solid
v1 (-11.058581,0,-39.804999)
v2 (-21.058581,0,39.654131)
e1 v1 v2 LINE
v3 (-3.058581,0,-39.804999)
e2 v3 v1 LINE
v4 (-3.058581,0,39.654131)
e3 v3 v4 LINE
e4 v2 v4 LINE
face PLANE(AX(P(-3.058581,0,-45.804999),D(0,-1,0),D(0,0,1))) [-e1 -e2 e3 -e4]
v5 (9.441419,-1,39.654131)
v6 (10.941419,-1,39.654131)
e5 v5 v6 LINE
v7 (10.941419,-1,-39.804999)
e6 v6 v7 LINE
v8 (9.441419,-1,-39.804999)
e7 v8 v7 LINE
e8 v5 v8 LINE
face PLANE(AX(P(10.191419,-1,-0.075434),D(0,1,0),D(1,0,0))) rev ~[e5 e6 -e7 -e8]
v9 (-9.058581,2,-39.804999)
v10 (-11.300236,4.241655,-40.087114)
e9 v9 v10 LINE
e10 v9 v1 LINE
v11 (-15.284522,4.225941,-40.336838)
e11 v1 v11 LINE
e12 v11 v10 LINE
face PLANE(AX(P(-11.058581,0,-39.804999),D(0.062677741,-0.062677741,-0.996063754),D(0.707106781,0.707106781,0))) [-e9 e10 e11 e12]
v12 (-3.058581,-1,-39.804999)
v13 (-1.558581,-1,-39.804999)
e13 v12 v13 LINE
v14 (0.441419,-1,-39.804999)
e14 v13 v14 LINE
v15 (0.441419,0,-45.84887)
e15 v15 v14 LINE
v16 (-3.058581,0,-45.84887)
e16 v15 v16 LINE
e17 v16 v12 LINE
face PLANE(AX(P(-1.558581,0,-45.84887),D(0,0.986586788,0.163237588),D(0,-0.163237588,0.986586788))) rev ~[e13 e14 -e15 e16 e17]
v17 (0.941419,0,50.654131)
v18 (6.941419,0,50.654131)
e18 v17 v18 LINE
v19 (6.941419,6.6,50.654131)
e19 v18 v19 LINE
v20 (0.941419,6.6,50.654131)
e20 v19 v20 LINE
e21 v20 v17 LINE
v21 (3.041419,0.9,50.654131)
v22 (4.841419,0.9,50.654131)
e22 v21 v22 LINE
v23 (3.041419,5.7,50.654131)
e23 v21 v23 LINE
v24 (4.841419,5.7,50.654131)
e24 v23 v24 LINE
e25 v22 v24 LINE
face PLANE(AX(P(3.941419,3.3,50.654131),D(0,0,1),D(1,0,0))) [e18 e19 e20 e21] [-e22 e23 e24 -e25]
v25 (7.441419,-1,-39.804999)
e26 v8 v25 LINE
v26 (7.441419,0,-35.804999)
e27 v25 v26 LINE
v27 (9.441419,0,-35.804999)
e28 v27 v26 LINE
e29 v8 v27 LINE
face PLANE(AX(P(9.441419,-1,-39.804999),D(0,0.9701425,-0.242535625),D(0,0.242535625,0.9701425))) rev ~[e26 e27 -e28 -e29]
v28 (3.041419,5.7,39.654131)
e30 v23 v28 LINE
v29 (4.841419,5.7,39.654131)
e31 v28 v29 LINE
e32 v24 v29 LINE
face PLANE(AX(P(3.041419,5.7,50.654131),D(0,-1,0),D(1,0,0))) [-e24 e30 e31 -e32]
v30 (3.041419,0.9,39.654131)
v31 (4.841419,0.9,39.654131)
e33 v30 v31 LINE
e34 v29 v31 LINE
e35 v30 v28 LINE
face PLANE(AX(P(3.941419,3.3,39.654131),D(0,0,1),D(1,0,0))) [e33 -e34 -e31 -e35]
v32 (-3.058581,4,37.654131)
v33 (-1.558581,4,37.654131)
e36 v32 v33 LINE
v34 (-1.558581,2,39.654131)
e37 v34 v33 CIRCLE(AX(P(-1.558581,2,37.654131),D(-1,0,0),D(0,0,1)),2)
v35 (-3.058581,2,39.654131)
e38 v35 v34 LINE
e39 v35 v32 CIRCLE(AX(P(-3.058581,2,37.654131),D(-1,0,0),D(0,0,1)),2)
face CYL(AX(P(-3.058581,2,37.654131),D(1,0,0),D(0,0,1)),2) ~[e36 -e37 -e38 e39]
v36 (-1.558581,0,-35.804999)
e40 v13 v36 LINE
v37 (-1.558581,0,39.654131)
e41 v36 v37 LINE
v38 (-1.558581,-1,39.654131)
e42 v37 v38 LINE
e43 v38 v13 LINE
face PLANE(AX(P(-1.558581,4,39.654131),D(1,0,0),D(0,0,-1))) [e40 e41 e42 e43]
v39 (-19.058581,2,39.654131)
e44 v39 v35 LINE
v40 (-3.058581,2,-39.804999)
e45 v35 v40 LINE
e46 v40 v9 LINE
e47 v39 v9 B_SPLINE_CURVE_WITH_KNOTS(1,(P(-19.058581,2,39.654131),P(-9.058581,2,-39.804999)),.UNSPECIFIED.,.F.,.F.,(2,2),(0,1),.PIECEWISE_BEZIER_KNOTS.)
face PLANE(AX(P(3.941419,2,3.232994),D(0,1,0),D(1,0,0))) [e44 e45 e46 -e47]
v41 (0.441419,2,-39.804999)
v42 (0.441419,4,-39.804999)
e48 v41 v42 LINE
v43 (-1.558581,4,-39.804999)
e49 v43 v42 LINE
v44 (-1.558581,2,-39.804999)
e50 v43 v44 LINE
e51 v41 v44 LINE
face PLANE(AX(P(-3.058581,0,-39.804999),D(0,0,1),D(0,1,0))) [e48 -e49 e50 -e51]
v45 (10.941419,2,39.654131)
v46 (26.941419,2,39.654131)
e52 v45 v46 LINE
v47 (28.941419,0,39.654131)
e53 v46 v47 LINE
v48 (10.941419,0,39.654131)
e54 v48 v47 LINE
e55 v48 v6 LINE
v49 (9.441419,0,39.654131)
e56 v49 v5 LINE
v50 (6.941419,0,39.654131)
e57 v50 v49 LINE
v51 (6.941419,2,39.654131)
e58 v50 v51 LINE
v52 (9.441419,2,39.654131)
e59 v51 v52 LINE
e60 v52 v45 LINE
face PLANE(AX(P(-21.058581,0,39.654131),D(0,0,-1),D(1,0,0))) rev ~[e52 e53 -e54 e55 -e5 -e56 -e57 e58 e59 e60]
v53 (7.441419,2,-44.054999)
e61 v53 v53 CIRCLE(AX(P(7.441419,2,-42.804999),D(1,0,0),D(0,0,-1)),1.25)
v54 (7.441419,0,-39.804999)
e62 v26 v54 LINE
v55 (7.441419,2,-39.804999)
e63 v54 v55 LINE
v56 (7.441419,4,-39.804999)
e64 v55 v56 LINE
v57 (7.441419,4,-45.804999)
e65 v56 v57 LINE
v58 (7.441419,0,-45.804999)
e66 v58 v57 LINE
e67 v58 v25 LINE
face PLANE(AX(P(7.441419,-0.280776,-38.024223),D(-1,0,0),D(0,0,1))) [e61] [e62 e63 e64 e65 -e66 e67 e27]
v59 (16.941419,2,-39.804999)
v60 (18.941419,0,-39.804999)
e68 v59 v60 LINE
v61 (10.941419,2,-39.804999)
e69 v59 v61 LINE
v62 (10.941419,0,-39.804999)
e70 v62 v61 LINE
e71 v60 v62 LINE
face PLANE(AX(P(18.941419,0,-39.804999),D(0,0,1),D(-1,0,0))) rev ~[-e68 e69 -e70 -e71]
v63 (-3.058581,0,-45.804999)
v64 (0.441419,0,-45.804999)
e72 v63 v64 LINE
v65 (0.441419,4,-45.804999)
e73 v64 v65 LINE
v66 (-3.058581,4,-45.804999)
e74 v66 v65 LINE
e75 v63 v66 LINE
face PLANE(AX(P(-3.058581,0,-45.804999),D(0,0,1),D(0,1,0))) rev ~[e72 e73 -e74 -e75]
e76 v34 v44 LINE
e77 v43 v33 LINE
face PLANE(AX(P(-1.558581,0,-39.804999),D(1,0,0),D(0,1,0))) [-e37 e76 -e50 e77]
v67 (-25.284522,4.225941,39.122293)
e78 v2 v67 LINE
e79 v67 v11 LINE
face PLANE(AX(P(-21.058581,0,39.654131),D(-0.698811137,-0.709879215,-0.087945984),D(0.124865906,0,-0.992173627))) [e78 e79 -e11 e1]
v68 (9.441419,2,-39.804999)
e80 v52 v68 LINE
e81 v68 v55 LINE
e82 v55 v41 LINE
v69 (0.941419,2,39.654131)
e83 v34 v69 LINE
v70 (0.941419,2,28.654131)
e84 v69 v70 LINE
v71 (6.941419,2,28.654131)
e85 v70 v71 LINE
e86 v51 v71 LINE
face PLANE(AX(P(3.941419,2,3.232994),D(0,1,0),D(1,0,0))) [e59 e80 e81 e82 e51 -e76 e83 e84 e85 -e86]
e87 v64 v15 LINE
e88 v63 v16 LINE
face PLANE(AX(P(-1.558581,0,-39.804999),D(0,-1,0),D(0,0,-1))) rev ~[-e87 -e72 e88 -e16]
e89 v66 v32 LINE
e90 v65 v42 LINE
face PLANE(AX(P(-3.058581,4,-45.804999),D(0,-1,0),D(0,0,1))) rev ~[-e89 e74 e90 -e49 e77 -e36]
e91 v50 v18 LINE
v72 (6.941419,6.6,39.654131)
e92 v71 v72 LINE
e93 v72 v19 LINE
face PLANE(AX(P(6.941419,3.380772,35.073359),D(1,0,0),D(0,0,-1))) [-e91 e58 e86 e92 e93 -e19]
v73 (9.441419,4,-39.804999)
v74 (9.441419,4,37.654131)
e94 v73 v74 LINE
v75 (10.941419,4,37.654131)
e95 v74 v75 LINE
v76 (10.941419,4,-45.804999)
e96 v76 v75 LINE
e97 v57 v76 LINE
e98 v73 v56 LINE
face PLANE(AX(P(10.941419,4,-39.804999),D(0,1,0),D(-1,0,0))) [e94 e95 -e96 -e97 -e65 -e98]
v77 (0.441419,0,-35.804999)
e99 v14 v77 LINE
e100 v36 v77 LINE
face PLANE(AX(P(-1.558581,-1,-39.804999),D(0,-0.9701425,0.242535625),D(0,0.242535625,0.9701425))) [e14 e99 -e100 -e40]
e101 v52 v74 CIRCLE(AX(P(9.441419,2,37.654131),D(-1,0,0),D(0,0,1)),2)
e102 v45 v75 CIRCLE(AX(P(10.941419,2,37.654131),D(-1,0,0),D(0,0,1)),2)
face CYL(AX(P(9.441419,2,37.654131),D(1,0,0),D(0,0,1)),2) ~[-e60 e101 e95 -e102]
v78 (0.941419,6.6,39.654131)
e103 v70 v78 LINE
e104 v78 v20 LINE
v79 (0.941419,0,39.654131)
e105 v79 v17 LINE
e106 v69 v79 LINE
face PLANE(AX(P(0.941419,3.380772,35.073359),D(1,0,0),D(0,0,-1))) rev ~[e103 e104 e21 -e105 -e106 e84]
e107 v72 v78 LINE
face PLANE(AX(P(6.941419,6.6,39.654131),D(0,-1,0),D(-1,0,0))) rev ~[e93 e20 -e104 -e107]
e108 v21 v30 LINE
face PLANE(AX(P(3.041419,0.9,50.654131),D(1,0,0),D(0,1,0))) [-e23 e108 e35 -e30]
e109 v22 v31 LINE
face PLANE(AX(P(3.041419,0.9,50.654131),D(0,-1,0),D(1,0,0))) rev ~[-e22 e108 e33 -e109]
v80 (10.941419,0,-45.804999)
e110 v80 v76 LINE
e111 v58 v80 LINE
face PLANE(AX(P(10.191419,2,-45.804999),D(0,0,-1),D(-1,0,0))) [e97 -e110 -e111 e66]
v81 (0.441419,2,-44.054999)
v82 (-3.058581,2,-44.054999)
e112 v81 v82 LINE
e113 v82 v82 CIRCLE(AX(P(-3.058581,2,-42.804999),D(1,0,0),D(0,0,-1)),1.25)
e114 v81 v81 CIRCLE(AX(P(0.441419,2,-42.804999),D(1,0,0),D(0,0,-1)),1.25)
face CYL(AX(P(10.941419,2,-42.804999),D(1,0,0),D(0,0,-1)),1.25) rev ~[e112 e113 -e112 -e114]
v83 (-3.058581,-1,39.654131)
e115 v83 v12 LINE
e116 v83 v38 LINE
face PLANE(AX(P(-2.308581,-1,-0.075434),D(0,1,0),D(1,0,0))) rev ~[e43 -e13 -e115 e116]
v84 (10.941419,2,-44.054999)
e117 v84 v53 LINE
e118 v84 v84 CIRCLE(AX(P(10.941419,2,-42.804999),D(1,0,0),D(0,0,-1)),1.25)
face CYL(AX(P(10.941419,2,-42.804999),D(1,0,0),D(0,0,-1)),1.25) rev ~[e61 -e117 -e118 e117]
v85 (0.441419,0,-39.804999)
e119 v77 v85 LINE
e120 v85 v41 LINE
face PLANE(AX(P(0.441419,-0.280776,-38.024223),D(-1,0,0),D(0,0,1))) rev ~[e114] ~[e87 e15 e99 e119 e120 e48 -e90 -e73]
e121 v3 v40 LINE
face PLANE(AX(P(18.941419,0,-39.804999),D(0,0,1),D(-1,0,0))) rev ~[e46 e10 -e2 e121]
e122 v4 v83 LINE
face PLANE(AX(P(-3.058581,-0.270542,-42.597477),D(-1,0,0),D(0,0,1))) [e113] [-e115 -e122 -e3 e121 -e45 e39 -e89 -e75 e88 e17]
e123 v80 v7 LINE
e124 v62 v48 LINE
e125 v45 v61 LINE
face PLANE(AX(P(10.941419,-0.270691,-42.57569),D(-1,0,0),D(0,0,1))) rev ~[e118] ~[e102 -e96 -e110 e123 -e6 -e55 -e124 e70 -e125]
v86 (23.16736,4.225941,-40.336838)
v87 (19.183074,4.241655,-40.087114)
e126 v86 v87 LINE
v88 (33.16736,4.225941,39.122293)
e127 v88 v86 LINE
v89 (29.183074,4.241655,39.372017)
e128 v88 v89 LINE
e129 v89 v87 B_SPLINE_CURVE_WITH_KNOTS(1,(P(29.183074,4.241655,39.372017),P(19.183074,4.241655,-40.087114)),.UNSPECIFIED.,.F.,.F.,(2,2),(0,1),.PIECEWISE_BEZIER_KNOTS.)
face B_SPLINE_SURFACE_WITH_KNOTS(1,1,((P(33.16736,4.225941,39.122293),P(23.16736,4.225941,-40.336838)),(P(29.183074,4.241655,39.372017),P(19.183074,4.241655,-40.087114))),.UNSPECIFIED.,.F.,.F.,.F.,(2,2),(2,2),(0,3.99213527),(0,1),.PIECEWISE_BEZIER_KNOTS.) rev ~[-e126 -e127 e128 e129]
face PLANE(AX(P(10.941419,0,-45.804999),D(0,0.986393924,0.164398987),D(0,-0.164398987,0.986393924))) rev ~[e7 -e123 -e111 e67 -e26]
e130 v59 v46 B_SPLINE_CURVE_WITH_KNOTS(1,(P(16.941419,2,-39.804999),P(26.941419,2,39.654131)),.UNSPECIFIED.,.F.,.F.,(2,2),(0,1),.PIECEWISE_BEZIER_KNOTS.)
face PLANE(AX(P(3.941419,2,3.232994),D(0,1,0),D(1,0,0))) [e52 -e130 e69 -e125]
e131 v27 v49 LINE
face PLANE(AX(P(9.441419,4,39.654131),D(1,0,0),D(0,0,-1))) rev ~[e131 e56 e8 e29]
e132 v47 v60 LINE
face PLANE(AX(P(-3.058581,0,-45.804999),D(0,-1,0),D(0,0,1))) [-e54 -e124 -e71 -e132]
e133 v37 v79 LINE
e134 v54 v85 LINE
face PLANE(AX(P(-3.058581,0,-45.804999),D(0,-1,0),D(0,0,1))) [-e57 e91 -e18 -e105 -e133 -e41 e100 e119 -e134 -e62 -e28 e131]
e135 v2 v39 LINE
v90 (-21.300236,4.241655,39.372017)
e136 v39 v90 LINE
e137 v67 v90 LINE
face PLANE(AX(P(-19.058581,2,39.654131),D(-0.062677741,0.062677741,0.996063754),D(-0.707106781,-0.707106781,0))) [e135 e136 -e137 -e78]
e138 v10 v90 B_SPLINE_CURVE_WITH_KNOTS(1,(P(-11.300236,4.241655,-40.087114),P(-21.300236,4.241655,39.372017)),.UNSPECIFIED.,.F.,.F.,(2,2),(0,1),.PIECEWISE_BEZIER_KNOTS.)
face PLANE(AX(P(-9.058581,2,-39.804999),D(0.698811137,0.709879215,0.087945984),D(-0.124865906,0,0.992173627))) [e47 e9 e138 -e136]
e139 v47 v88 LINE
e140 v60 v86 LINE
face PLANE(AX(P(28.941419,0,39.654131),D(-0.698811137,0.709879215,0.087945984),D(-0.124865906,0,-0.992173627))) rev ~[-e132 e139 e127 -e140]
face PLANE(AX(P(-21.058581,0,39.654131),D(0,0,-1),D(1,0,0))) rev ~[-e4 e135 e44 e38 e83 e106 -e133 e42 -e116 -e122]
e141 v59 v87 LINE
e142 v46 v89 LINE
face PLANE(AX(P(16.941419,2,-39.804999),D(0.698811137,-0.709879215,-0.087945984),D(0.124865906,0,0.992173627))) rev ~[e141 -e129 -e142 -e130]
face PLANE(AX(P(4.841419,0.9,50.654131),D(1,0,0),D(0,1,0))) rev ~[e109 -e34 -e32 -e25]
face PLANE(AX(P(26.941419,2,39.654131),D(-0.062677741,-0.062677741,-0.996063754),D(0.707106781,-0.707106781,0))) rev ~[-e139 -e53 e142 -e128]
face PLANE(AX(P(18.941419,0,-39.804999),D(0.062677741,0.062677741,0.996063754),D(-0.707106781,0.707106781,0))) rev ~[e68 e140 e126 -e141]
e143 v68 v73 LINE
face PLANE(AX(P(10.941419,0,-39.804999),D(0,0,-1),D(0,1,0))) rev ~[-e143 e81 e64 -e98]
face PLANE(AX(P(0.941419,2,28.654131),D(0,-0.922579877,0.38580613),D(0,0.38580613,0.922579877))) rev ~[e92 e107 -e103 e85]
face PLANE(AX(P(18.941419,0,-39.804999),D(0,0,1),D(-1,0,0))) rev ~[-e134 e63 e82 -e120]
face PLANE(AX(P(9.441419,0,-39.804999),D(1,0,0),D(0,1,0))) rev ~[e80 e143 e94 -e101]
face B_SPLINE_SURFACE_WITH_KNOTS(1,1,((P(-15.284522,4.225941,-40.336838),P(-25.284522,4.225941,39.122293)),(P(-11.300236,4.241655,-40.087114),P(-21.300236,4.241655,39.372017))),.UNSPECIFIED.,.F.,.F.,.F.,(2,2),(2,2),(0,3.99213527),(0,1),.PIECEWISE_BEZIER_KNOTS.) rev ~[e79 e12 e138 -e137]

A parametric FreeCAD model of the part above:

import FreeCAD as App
import Part
import Sketcher

V = App.Vector
Q = App.Units.Quantity


def edges_at(feature, points):
    """Names of the edges that pass closest to the given points."""
    edges = feature.Shape.Edges
    near = lambda p: min(range(len(edges)), key=lambda i: edges[i].distToShape(Part.Vertex(*p))[0])
    return sorted({f"Edge{near(p) + 1}" for p in points})


def add_polygon(sketch, points):
    """Adds a closed chain of lines whose ends are joined by coincident constraints."""
    first, n = sketch.GeometryCount, len(points)
    for a, b in zip(points, points[1:] + points[:1]):
        sketch.addGeometry(Part.LineSegment(App.Vector(*a, 0), App.Vector(*b, 0)), False)
    for i in range(n):
        sketch.addConstraint(Sketcher.Constraint("Coincident", first + i, 2, first + (i + 1) % n, 1))

doc = App.newDocument("Part")
body = doc.addObject("PartDesign::Body", "Body")

# Sketch on XZ plane
sketch1 = body.newObject("Sketcher::SketchObject", "Sketch")
sketch1.AttachmentSupport = (doc.getObject("XZ_Plane"), [""])
sketch1.MapMode = "FlatFace"
add_polygon(sketch1, [(-21, 40), (29, 40), (19, -40), (-11, -40)])  # lines 0-3
sketch1.addConstraint([
    Sketcher.Constraint("Horizontal", 0),
    Sketcher.Constraint("Horizontal", 2),
    Sketcher.Constraint("Equal", 1, 3),
    Sketcher.Constraint("DistanceX", 0, 1, 0, 2, Q("50 mm")),
    Sketcher.Constraint("DistanceX", 2, 2, 2, 1, Q("30 mm")),
    Sketcher.Constraint("DistanceY", 1, 2, -1, 1, Q("39.804999 mm")),
    Sketcher.Constraint("DistanceX", -1, 1, 0, 2, Q("28.941419 mm")),
    Sketcher.Constraint("DistanceY", -1, 1, 0, 2, Q("39.654131 mm")),
])
pad1 = body.newObject("PartDesign::Pad", "Pad")
pad1.Profile = sketch1
pad1.Length = 2
pad1.Reversed = True

# Sketch on XY plane
sketch2 = body.newObject("Sketcher::SketchObject", "Sketch001")
sketch2.AttachmentSupport = (doc.getObject("XY_Plane"), [""])
sketch2.MapMode = "FlatFace"
sketch2.AttachmentOffset = App.Placement(V(0, 0, 39.654131), App.Rotation())
add_polygon(sketch2, [(-21.1, 2), (-21.1, 0), (-19.1, 2)])  # lines 0-2
sketch2.addConstraint([
    Sketcher.Constraint("Vertical", 0),
    Sketcher.Constraint("Horizontal", 2),
    Sketcher.Constraint("PointOnObject", 0, 2, -1),
    Sketcher.Constraint("Equal", 2, 0),
    Sketcher.Constraint("DistanceX", 2, 2, 2, 1, Q("2 mm")),
    Sketcher.Constraint("DistanceX", 0, 2, -1, 1, Q("21.058581 mm")),
])

# Sketch on XY plane
sketch3 = body.newObject("Sketcher::SketchObject", "Sketch002")
sketch3.AttachmentSupport = (doc.getObject("XY_Plane"), [""])
sketch3.MapMode = "FlatFace"
sketch3.AttachmentOffset = App.Placement(V(0, 0, -39.804999), App.Rotation())
add_polygon(sketch3, [(-11.1, 0), (-11.1, 2), (-9.1, 2)])  # lines 0-2
sketch3.addConstraint([
    Sketcher.Constraint("Vertical", 0),
    Sketcher.Constraint("Horizontal", 1),
    Sketcher.Constraint("PointOnObject", 2, 2, -1),
    Sketcher.Constraint("Equal", 1, 0),
    Sketcher.Constraint("DistanceX", 1, 1, 1, 2, Q("2 mm")),
    Sketcher.Constraint("DistanceX", 0, 2, -1, 1, Q("11.058581 mm")),
])

subtractiveloft = body.newObject("PartDesign::SubtractiveLoft", "SubtractiveLoft")
subtractiveloft.Profile = sketch2
subtractiveloft.Sections = [sketch3]

# Sketch on XY plane
sketch4 = body.newObject("Sketcher::SketchObject", "Sketch003")
sketch4.AttachmentSupport = (doc.getObject("XY_Plane"), [""])
sketch4.MapMode = "FlatFace"
sketch4.AttachmentOffset = App.Placement(V(0, 0, -39.804999), App.Rotation())
add_polygon(sketch4, [(18.9, 2), (18.9, 0), (16.9, 2)])  # lines 0-2
sketch4.addConstraint([
    Sketcher.Constraint("Vertical", 0),
    Sketcher.Constraint("Horizontal", 2),
    Sketcher.Constraint("PointOnObject", 0, 2, -1),
    Sketcher.Constraint("Equal", 2, 0),
    Sketcher.Constraint("DistanceX", 2, 1, 2, 2, Q("2 mm")),
    Sketcher.Constraint("DistanceX", -1, 1, 0, 2, Q("18.941419 mm")),
])

# Sketch on XY plane
sketch5 = body.newObject("Sketcher::SketchObject", "Sketch004")
sketch5.AttachmentSupport = (doc.getObject("XY_Plane"), [""])
sketch5.MapMode = "FlatFace"
sketch5.AttachmentOffset = App.Placement(V(0, 0, 39.654131), App.Rotation())
add_polygon(sketch5, [(28.9, 0), (28.9, 2), (26.9, 2)])  # lines 0-2
sketch5.addConstraint([
    Sketcher.Constraint("Vertical", 0),
    Sketcher.Constraint("Horizontal", 1),
    Sketcher.Constraint("PointOnObject", 2, 2, -1),
    Sketcher.Constraint("Equal", 1, 0),
    Sketcher.Constraint("DistanceX", 1, 2, 1, 1, Q("2 mm")),
    Sketcher.Constraint("DistanceX", -1, 1, 0, 2, Q("28.941419 mm")),
])

subtractiveloft2 = body.newObject("PartDesign::SubtractiveLoft", "SubtractiveLoft001")
subtractiveloft2.Profile = sketch4
subtractiveloft2.Sections = [sketch5]

# Sketch on an angled plane
sketch6 = body.newObject("Sketcher::SketchObject", "Sketch005")
sketch6.Placement = App.Placement(V(11.881365, 11.881365, -1.49528), App.Rotation(V(-0.062677741, -0.062677741, -0.996063754), V(-0.707106782, 0.707106782, 0), V(0.704323435, 0.704323435, -0.088639711), "ZXY"))
add_polygon(sketch6, [(-41.3, -20.5), (38.5, -13.4), (38.5, -10.6), (-41.3, -17.6)])  # lines 0-3
sketch6.addConstraint([
    Sketcher.Constraint("Vertical", 1),
    Sketcher.Constraint("Vertical", 3),
    Sketcher.Constraint("Parallel", 0, 2),
    Sketcher.Constraint("DistanceY", 1, 1, 1, 2, Q("2.828427 mm")),
    Sketcher.Constraint("DistanceX", -1, 1, 0, 2, Q("38.461112 mm")),
    Sketcher.Constraint("DistanceY", 1, 2, -1, 1, Q("10.565179 mm")),
    Sketcher.Constraint("DistanceY", 2, 2, 0, 2, Q("4.242641 mm")),
    Sketcher.Constraint("Distance", 0, Q("80.085913 mm")),
])
pad2 = body.newObject("PartDesign::Pad", "Pad001")
pad2.Profile = sketch6
pad2.Length = 6

# Sketch on an angled plane
sketch7 = body.newObject("Sketcher::SketchObject", "Sketch006")
sketch7.Placement = App.Placement(V(-7.970914, 7.970914, -1.003146), App.Rotation(V(-0.062677741, 0.062677741, 0.996063754), V(0.707106782, 0.707106782, 0), V(-0.704323435, 0.704323435, -0.088639711), "ZXY"))
add_polygon(sketch7, [(40.8, -12.1), (-39, -5), (-39, -7.8), (40.8, -14.9)])  # lines 0-3
sketch7.addConstraint([
    Sketcher.Constraint("Vertical", 1),
    Sketcher.Constraint("Vertical", 3),
    Sketcher.Constraint("Parallel", 0, 2),
    Sketcher.Constraint("DistanceY", 1, 2, 1, 1, Q("2.828427 mm")),
    Sketcher.Constraint("DistanceX", 0, 2, -1, 1, Q("38.95519 mm")),
    Sketcher.Constraint("DistanceY", 0, 2, -1, 1, Q("4.99117 mm")),
    Sketcher.Constraint("DistanceY", 3, 2, -1, 1, Q("12.062238 mm")),
    Sketcher.Constraint("Distance", 0, Q("80.085913 mm")),
])
pad3 = body.newObject("PartDesign::Pad", "Pad002")
pad3.Profile = sketch7
pad3.Length = 6

# Sketch on an angled plane
sketch8 = body.newObject("Sketcher::SketchObject", "Sketch007")
sketch8.Placement = App.Placement(V(2.441623, -2.441623, -38.801853), App.Rotation(V(-0.998033817, -0.003936239, -0.062554019), V(0, 0.998026055, -0.06280122), V(0.062677741, -0.062677741, -0.996063754), "ZXY"))
add_polygon(sketch8, [(13.8, 6.8), (17.8, 6.8), (15.8, 8.7)])  # lines 0-2
sketch8.addConstraint([
    Sketcher.Constraint("Horizontal", 0),
    Sketcher.Constraint("Perpendicular", 1, 2),
    Sketcher.Constraint("DistanceY", -1, 1, 0, 2, Q("6.750801 mm")),
    Sketcher.Constraint("DistanceX", 0, 1, 0, 2, Q("3.992135 mm")),
    Sketcher.Constraint("DistanceX", -1, 1, 2, 2, Q("13.768931 mm")),
    Sketcher.Constraint("DistanceX", 1, 2, 0, 2, Q("2.00394 mm")),
])

# Sketch on an angled plane
sketch9 = body.newObject("Sketcher::SketchObject", "Sketch008")
sketch9.Placement = App.Placement(V(-2.558377, 2.558377, 40.657277), App.Rotation(V(0.998033817, 0.003936239, 0.062554019), V(0, 0.998026055, -0.06280122), V(-0.062677741, 0.062677741, 0.996063754), "ZXY"))
add_polygon(sketch9, [(-22.8, 1.8), (-18.8, 1.8), (-20.8, 3.8)])  # lines 0-2
sketch9.addConstraint([
    Sketcher.Constraint("Horizontal", 0),
    Sketcher.Constraint("Perpendicular", 1, 2),
    Sketcher.Constraint("DistanceX", 0, 1, 0, 2, Q("3.992135 mm")),
    Sketcher.Constraint("DistanceX", 0, 2, -1, 1, Q("18.778781 mm")),
    Sketcher.Constraint("DistanceY", -1, 1, 0, 2, Q("1.760671 mm")),
    Sketcher.Constraint("DistanceX", 2, 2, 1, 2, Q("2.00394 mm")),
])

subtractiveloft3 = body.newObject("PartDesign::SubtractiveLoft", "SubtractiveLoft002")
subtractiveloft3.Profile = sketch8
subtractiveloft3.Sections = [sketch9]

# Sketch on an angled plane
sketch10 = body.newObject("Sketcher::SketchObject", "Sketch009")
sketch10.Placement = App.Placement(V(2.589344, 2.589344, 41.149411), App.Rotation(V(0.998033817, -0.003936239, -0.062554019), V(0, 0.998026055, -0.06280122), V(0.062677741, 0.062677741, 0.996063754), "ZXY"))
add_polygon(sketch10, [(26.6, 1.8), (30.6, 1.8), (28.6, 3.8)])  # lines 0-2
sketch10.addConstraint([
    Sketcher.Constraint("Horizontal", 0),
    Sketcher.Constraint("Perpendicular", 1, 2),
    Sketcher.Constraint("DistanceX", 0, 1, 0, 2, Q("3.992135 mm")),
    Sketcher.Constraint("DistanceY", -1, 1, 0, 2, Q("1.760671 mm")),
    Sketcher.Constraint("DistanceX", -1, 1, 2, 2, Q("26.64612 mm")),
    Sketcher.Constraint("DistanceX", 1, 2, 0, 2, Q("2.00394 mm")),
])

# Sketch on an angled plane
sketch11 = body.newObject("Sketcher::SketchObject", "Sketch010")
sketch11.Placement = App.Placement(V(-2.410656, -2.410656, -38.309719), App.Rotation(V(-0.998033817, 0.003936239, 0.062554019), V(0, 0.998026055, -0.06280122), V(-0.062677741, -0.062677741, -0.996063754), "ZXY"))
add_polygon(sketch11, [(-25.6, 6.8), (-21.6, 6.8), (-23.6, 8.7)])  # lines 0-2
sketch11.addConstraint([
    Sketcher.Constraint("Horizontal", 0),
    Sketcher.Constraint("Perpendicular", 1, 2),
    Sketcher.Constraint("DistanceY", -1, 1, 0, 2, Q("6.750801 mm")),
    Sketcher.Constraint("DistanceX", 0, 1, 0, 2, Q("3.992135 mm")),
    Sketcher.Constraint("DistanceX", 0, 2, -1, 1, Q("21.63627 mm")),
    Sketcher.Constraint("DistanceX", 2, 2, 1, 2, Q("2.00394 mm")),
])

subtractiveloft4 = body.newObject("PartDesign::SubtractiveLoft", "SubtractiveLoft003")
subtractiveloft4.Profile = sketch10
subtractiveloft4.Sections = [sketch11]

# Sketch on XZ plane
sketch12 = body.newObject("Sketcher::SketchObject", "Sketch011")
sketch12.AttachmentSupport = (doc.getObject("XZ_Plane"), [""])
sketch12.MapMode = "FlatFace"
sketch12.AttachmentOffset = App.Placement(V(0, 0, -2), App.Rotation())
add_polygon(sketch12, [(9.4, -39.8), (9.4, 39.7), (10.9, 39.7), (10.9, -39.8)])  # lines 0-3
add_polygon(sketch12, [(-3.1, -39.8), (-3.1, 39.7), (-1.6, 39.7), (-1.6, -39.8)])  # lines 4-7
sketch12.addConstraint([
    Sketcher.Constraint("Vertical", 0),
    Sketcher.Constraint("Horizontal", 1),
    Sketcher.Constraint("Vertical", 2),
    Sketcher.Constraint("Horizontal", 3),
    Sketcher.Constraint("Vertical", 4),
    Sketcher.Constraint("Horizontal", 5),
    Sketcher.Constraint("Vertical", 6),
    Sketcher.Constraint("Horizontal", 7),
    Sketcher.Constraint("Horizontal", 1, 2, 4, 2),
    Sketcher.Constraint("Horizontal", 3, 2, 6, 2),
    Sketcher.Constraint("Equal", 3, 5),
    Sketcher.Constraint("DistanceX", 1, 1, 1, 2, Q("1.5 mm")),
    Sketcher.Constraint("DistanceX", 4, 2, 1, 2, Q("14 mm")),
    Sketcher.Constraint("DistanceY", 2, 2, -1, 1, Q("39.804999 mm")),
    Sketcher.Constraint("DistanceY", 0, 1, 0, 2, Q("79.45913 mm")),
    Sketcher.Constraint("DistanceX", -1, 1, 0, 2, Q("9.441419 mm")),
])
pad4 = body.newObject("PartDesign::Pad", "Pad003")
pad4.Profile = sketch12
pad4.Length = 2
pad4.Reversed = True

# Sketch on XY plane
sketch13 = body.newObject("Sketcher::SketchObject", "Sketch012")
sketch13.AttachmentSupport = (doc.getObject("XY_Plane"), [""])
sketch13.MapMode = "FlatFace"
sketch13.AttachmentOffset = App.Placement(V(0, 0, 39.654131), App.Rotation())
add_polygon(sketch13, [(7, 0), (7, 7), (1, 7), (1, 0)])  # lines 0-3
sketch13.addConstraint([
    Sketcher.Constraint("Vertical", 0),
    Sketcher.Constraint("Horizontal", 1),
    Sketcher.Constraint("Vertical", 2),
    Sketcher.Constraint("Horizontal", 3),
    Sketcher.Constraint("PointOnObject", 2, 2, -1),
    Sketcher.Constraint("DistanceX", 1, 2, 1, 1, Q("6 mm")),
    Sketcher.Constraint("DistanceY", 0, 1, 0, 2, Q("6.6 mm")),
    Sketcher.Constraint("DistanceX", -1, 1, 0, 2, Q("6.941419 mm")),
])
pad5 = body.newObject("PartDesign::Pad", "Pad004")
pad5.Profile = sketch13
pad5.Length = 11

# Sketch on XY plane
sketch14 = body.newObject("Sketcher::SketchObject", "Sketch013")
sketch14.AttachmentSupport = (doc.getObject("XY_Plane"), [""])
sketch14.MapMode = "FlatFace"
sketch14.AttachmentOffset = App.Placement(V(0, 0, 50.654131), App.Rotation())
add_polygon(sketch14, [(3, 5.7), (3, 0.9), (4.8, 0.9), (4.8, 5.7)])  # lines 0-3
sketch14.addConstraint([
    Sketcher.Constraint("Vertical", 0),
    Sketcher.Constraint("Horizontal", 1),
    Sketcher.Constraint("Vertical", 2),
    Sketcher.Constraint("Horizontal", 3),
    Sketcher.Constraint("DistanceX", 1, 1, 1, 2, Q("1.8 mm")),
    Sketcher.Constraint("DistanceY", 0, 2, 0, 1, Q("4.8 mm")),
    Sketcher.Constraint("DistanceY", -1, 1, 0, 2, Q("0.9 mm")),
    Sketcher.Constraint("DistanceX", -1, 1, 0, 2, Q("3.041419 mm")),
])
pocket1 = body.newObject("PartDesign::Pocket", "Pocket")
pocket1.Profile = sketch14
pocket1.Length = 11

# Sketch on YZ plane
sketch15 = body.newObject("Sketcher::SketchObject", "Sketch014")
sketch15.AttachmentSupport = (doc.getObject("YZ_Plane"), [""])
sketch15.MapMode = "FlatFace"
sketch15.AttachmentOffset = App.Placement(V(0, 0, 0.941419), App.Rotation())
add_polygon(sketch15, [(2, 28.7), (2, 39.7), (6.6, 39.7)])  # lines 0-2
sketch15.addConstraint([
    Sketcher.Constraint("Vertical", 0),
    Sketcher.Constraint("Horizontal", 1),
    Sketcher.Constraint("DistanceY", 0, 1, 0, 2, Q("11 mm")),
    Sketcher.Constraint("DistanceX", 1, 1, 1, 2, Q("4.6 mm")),
    Sketcher.Constraint("DistanceX", -1, 1, 0, 2, Q("2 mm")),
    Sketcher.Constraint("DistanceY", -1, 1, 0, 2, Q("39.654131 mm")),
])
pad6 = body.newObject("PartDesign::Pad", "Pad005")
pad6.Profile = sketch15
pad6.Length = 6

# Sketch on XY plane
sketch16 = body.newObject("Sketcher::SketchObject", "Sketch015")
sketch16.AttachmentSupport = (doc.getObject("XY_Plane"), [""])
sketch16.MapMode = "FlatFace"
sketch16.AttachmentOffset = App.Placement(V(0, 0, -39.804999), App.Rotation())
add_polygon(sketch16, [(10.9, 4), (10.9, 0), (9.4, 0), (9.4, 4)])  # lines 0-3
add_polygon(sketch16, [(-1.6, 4), (-1.6, 0), (-3.1, 0), (-3.1, 4)])  # lines 4-7
sketch16.addConstraint([
    Sketcher.Constraint("Vertical", 0),
    Sketcher.Constraint("Horizontal", 1),
    Sketcher.Constraint("Vertical", 2),
    Sketcher.Constraint("Horizontal", 3),
    Sketcher.Constraint("Vertical", 4),
    Sketcher.Constraint("Horizontal", 5),
    Sketcher.Constraint("Vertical", 6),
    Sketcher.Constraint("Horizontal", 7),
    Sketcher.Constraint("PointOnObject", 0, 2, -1),
    Sketcher.Constraint("PointOnObject", 4, 2, -1),
    Sketcher.Constraint("Horizontal", 3, 2, 6, 2),
    Sketcher.Constraint("Equal", 3, 5),
    Sketcher.Constraint("DistanceY", 0, 2, 0, 1, Q("4 mm")),
    Sketcher.Constraint("DistanceX", 1, 2, 1, 1, Q("1.5 mm")),
    Sketcher.Constraint("DistanceX", 4, 2, 1, 2, Q("11 mm")),
    Sketcher.Constraint("DistanceX", -1, 1, 0, 2, Q("10.941419 mm")),
])
pad7 = body.newObject("PartDesign::Pad", "Pad006")
pad7.Profile = sketch16
pad7.Length = 6
pad7.Reversed = True

# Sketch on YZ plane
sketch17 = body.newObject("Sketcher::SketchObject", "Sketch016")
sketch17.AttachmentSupport = (doc.getObject("YZ_Plane"), [""])
sketch17.MapMode = "FlatFace"
sketch17.AttachmentOffset = App.Placement(V(0, 0, -3.058581), App.Rotation())
add_polygon(sketch17, [(4, -45.8), (0, -45.8), (0, -39.8), (4, -39.8)])  # lines 0-3
sketch17.addConstraint([
    Sketcher.Constraint("Horizontal", 0),
    Sketcher.Constraint("Vertical", 1),
    Sketcher.Constraint("Horizontal", 2),
    Sketcher.Constraint("Vertical", 3),
    Sketcher.Constraint("PointOnObject", 0, 2, -2),
    Sketcher.Constraint("DistanceX", 0, 2, 0, 1, Q("4 mm")),
    Sketcher.Constraint("DistanceY", 1, 1, 1, 2, Q("6 mm")),
    Sketcher.Constraint("DistanceY", 0, 2, -1, 1, Q("45.804999 mm")),
])
pad8 = body.newObject("PartDesign::Pad", "Pad007")
pad8.Profile = sketch17
pad8.Length = 3.5

# Sketch on YZ plane
sketch18 = body.newObject("Sketcher::SketchObject", "Sketch017")
sketch18.AttachmentSupport = (doc.getObject("YZ_Plane"), [""])
sketch18.MapMode = "FlatFace"
sketch18.AttachmentOffset = App.Placement(V(0, 0, 10.941419), App.Rotation())
add_polygon(sketch18, [(4, -39.8), (0, -39.8), (0, -45.8), (4, -45.8)])  # lines 0-3
sketch18.addConstraint([
    Sketcher.Constraint("Horizontal", 0),
    Sketcher.Constraint("Vertical", 1),
    Sketcher.Constraint("Horizontal", 2),
    Sketcher.Constraint("Vertical", 3),
    Sketcher.Constraint("PointOnObject", 0, 2, -2),
    Sketcher.Constraint("DistanceX", 0, 2, 0, 1, Q("4 mm")),
    Sketcher.Constraint("DistanceY", 1, 2, 1, 1, Q("6 mm")),
    Sketcher.Constraint("DistanceY", 0, 2, -1, 1, Q("39.804999 mm")),
])
pad9 = body.newObject("PartDesign::Pad", "Pad008")
pad9.Profile = sketch18
pad9.Length = 3.5
pad9.Reversed = True

# Sketch on YZ plane
sketch19 = body.newObject("Sketcher::SketchObject", "Sketch018")
sketch19.AttachmentSupport = (doc.getObject("YZ_Plane"), [""])
sketch19.MapMode = "FlatFace"
sketch19.AttachmentOffset = App.Placement(V(0, 0, 10.941419), App.Rotation())
sketch19.addGeometry(Part.Circle(V(2, -42.8, 0), V(0, 0, 1), 1.2), False)
sketch19.addConstraint([
    Sketcher.Constraint("Diameter", 0, Q("2.5 mm")),
    Sketcher.Constraint("DistanceX", -1, 1, 0, 3, Q("2 mm")),
    Sketcher.Constraint("DistanceY", 0, 3, -1, 1, Q("42.804999 mm")),
])
pocket2 = body.newObject("PartDesign::Pocket", "Pocket001")
pocket2.Profile = sketch19
pocket2.Length = 23.5

# Sketch on XZ plane
sketch20 = body.newObject("Sketcher::SketchObject", "Sketch019")
sketch20.AttachmentSupport = (doc.getObject("XZ_Plane"), [""])
sketch20.MapMode = "FlatFace"
sketch20.AttachmentOffset = App.Placement(V(0, 0, -4), App.Rotation())
add_polygon(sketch20, [(-3.1, -39.8), (-3.1, 39.7), (-1.6, 39.7), (-1.6, -39.8)])  # lines 0-3
add_polygon(sketch20, [(9.4, -39.8), (9.4, 39.7), (10.9, 39.7), (10.9, -39.8)])  # lines 4-7
sketch20.addConstraint([
    Sketcher.Constraint("Vertical", 0),
    Sketcher.Constraint("Horizontal", 1),
    Sketcher.Constraint("Vertical", 2),
    Sketcher.Constraint("Horizontal", 3),
    Sketcher.Constraint("Vertical", 4),
    Sketcher.Constraint("Horizontal", 5),
    Sketcher.Constraint("Vertical", 6),
    Sketcher.Constraint("Horizontal", 7),
    Sketcher.Constraint("Horizontal", 1, 2, 4, 2),
    Sketcher.Constraint("Horizontal", 3, 2, 6, 2),
    Sketcher.Constraint("Equal", 3, 5),
    Sketcher.Constraint("DistanceX", 1, 1, 1, 2, Q("1.5 mm")),
    Sketcher.Constraint("DistanceX", 1, 2, 4, 2, Q("11 mm")),
    Sketcher.Constraint("DistanceY", 2, 2, -1, 1, Q("39.804999 mm")),
    Sketcher.Constraint("DistanceY", 0, 1, 0, 2, Q("79.45913 mm")),
    Sketcher.Constraint("DistanceX", 0, 2, -1, 1, Q("3.058581 mm")),
])
pad10 = body.newObject("PartDesign::Pad", "Pad009")
pad10.Profile = sketch20
pad10.Length = 5

# Sketch on YZ plane
sketch21 = body.newObject("Sketcher::SketchObject", "Sketch020")
sketch21.AttachmentSupport = (doc.getObject("YZ_Plane"), [""])
sketch21.MapMode = "FlatFace"
sketch21.AttachmentOffset = App.Placement(V(0, 0, -1.558581), App.Rotation())
add_polygon(sketch21, [(0, -39.8), (-1, -39.8), (0, -45.8)])  # lines 0-2
sketch21.addConstraint([
    Sketcher.Constraint("Horizontal", 0),
    Sketcher.Constraint("Vertical", 2),
    Sketcher.Constraint("PointOnObject", 1, 2, -2),
    Sketcher.Constraint("DistanceX", 0, 2, 0, 1, Q("1 mm")),
    Sketcher.Constraint("DistanceY", 0, 2, -1, 1, Q("39.804999 mm")),
    Sketcher.Constraint("DistanceY", 2, 1, 2, 2, Q("6.04387 mm")),
])
pad11 = body.newObject("PartDesign::Pad", "Pad010")
pad11.Profile = sketch21
pad11.Type = "TwoLengths"
pad11.Length = 2
pad11.Length2 = 1.5

# Sketch on YZ plane
sketch22 = body.newObject("Sketcher::SketchObject", "Sketch021")
sketch22.AttachmentSupport = (doc.getObject("YZ_Plane"), [""])
sketch22.MapMode = "FlatFace"
sketch22.AttachmentOffset = App.Placement(V(0, 0, 10.941419), App.Rotation())
add_polygon(sketch22, [(0, -45.8), (0, -39.8), (-1, -39.8)])  # lines 0-2
sketch22.addConstraint([
    Sketcher.Constraint("Vertical", 0),
    Sketcher.Constraint("Horizontal", 1),
    Sketcher.Constraint("PointOnObject", 0, 2, -2),
    Sketcher.Constraint("DistanceX", 1, 2, 1, 1, Q("1 mm")),
    Sketcher.Constraint("DistanceY", 0, 1, 0, 2, Q("6 mm")),
    Sketcher.Constraint("DistanceY", 0, 2, -1, 1, Q("39.804999 mm")),
])
pad12 = body.newObject("PartDesign::Pad", "Pad011")
pad12.Profile = sketch22
pad12.Length = 3.5
pad12.Reversed = True

# Sketch on YZ plane
sketch23 = body.newObject("Sketcher::SketchObject", "Sketch022")
sketch23.AttachmentSupport = (doc.getObject("YZ_Plane"), [""])
sketch23.MapMode = "FlatFace"
sketch23.AttachmentOffset = App.Placement(V(0, 0, -1.558581), App.Rotation())
add_polygon(sketch23, [(0, -35.8), (-1, -39.8), (0, -39.8)])  # lines 0-2
sketch23.addConstraint([
    Sketcher.Constraint("Horizontal", 1),
    Sketcher.Constraint("Vertical", 2),
    Sketcher.Constraint("PointOnObject", 1, 2, -2),
    Sketcher.Constraint("DistanceX", 1, 1, 1, 2, Q("1 mm")),
    Sketcher.Constraint("DistanceY", 2, 1, 2, 2, Q("4 mm")),
    Sketcher.Constraint("DistanceY", 0, 2, -1, 1, Q("39.804999 mm")),
])
pad13 = body.newObject("PartDesign::Pad", "Pad012")
pad13.Profile = sketch23
pad13.Length = 2

# Sketch on YZ plane
sketch24 = body.newObject("Sketcher::SketchObject", "Sketch023")
sketch24.AttachmentSupport = (doc.getObject("YZ_Plane"), [""])
sketch24.MapMode = "FlatFace"
sketch24.AttachmentOffset = App.Placement(V(0, 0, 9.441419), App.Rotation())
add_polygon(sketch24, [(0, -39.8), (-1, -39.8), (0, -35.8)])  # lines 0-2
sketch24.addConstraint([
    Sketcher.Constraint("Horizontal", 0),
    Sketcher.Constraint("Vertical", 2),
    Sketcher.Constraint("PointOnObject", 1, 2, -2),
    Sketcher.Constraint("DistanceX", 0, 2, 0, 1, Q("1 mm")),
    Sketcher.Constraint("DistanceY", 2, 2, 2, 1, Q("4 mm")),
    Sketcher.Constraint("DistanceY", 0, 2, -1, 1, Q("39.804999 mm")),
])
pad14 = body.newObject("PartDesign::Pad", "Pad013")
pad14.Profile = sketch24
pad14.Length = 2
pad14.Reversed = True
doc.recompute()

fillet = body.newObject("PartDesign::Fillet", "Fillet")
fillet.Base = (pad14, edges_at(pad14, [(10.191, 4, 39.654), (-2.309, 4, 39.654)]))
fillet.Radius = 2

doc.recompute()
